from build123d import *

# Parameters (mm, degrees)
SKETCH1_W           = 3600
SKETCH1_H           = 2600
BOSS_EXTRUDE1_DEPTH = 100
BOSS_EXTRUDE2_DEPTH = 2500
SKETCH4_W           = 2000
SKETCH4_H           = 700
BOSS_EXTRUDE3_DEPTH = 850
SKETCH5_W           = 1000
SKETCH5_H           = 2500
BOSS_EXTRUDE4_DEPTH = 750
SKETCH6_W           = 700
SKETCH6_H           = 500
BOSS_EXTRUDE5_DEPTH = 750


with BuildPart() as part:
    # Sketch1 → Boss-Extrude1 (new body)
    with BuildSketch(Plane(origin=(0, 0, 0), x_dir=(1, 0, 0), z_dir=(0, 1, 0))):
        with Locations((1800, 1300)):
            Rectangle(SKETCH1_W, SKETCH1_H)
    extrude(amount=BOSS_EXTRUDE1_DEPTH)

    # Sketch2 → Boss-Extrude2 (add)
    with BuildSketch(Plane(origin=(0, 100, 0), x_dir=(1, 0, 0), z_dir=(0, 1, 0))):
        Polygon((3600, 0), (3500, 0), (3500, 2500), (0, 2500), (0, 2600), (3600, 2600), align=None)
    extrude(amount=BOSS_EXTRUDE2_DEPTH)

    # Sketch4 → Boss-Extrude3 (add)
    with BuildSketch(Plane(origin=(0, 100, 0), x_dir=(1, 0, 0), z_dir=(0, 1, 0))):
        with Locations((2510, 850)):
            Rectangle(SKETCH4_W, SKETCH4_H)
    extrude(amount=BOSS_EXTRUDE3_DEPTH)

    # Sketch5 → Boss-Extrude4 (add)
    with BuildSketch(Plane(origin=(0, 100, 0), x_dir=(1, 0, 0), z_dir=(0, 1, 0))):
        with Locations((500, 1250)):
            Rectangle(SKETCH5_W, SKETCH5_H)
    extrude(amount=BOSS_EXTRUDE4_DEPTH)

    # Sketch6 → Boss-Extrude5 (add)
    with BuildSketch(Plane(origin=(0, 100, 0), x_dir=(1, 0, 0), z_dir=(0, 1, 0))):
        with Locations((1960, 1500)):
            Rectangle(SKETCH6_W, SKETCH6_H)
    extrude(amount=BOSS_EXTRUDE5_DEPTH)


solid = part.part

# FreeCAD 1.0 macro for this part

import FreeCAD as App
import Part
import Sketcher

V = App.Vector
Q = App.Units.Quantity

doc = App.newDocument("Part")
body = doc.addObject("PartDesign::Body", "Body")

sketch1 = body.newObject("Sketcher::SketchObject", "Sketch")
sketch1.AttachmentSupport = (doc.getObject("XZ_Plane"), [""])
sketch1.MapMode = "FlatFace"
sketch1.addGeometry(Part.LineSegment(V(0, -2600, 0), V(0, 0, 0)), False)
sketch1.addGeometry(Part.LineSegment(V(0, 0, 0), V(3600, 0, 0)), False)
sketch1.addGeometry(Part.LineSegment(V(3600, 0, 0), V(3600, -2600, 0)), False)
sketch1.addGeometry(Part.LineSegment(V(3600, -2600, 0), V(0, -2600, 0)), False)
sketch1.addConstraint(Sketcher.Constraint("Coincident", 0, 2, 1, 1))
sketch1.addConstraint(Sketcher.Constraint("Coincident", 1, 2, 2, 1))
sketch1.addConstraint(Sketcher.Constraint("Coincident", 2, 2, 3, 1))
sketch1.addConstraint(Sketcher.Constraint("Coincident", 3, 2, 0, 1))
sketch1.addConstraint(Sketcher.Constraint("Vertical", 0))
sketch1.addConstraint(Sketcher.Constraint("Horizontal", 1))
sketch1.addConstraint(Sketcher.Constraint("Vertical", 2))
sketch1.addConstraint(Sketcher.Constraint("Horizontal", 3))
sketch1.addConstraint(Sketcher.Constraint("Coincident", 0, 2, -1, 1))
sketch1.addConstraint(Sketcher.Constraint("DistanceX", 1, 1, 1, 2, Q("3600 mm")))
sketch1.addConstraint(Sketcher.Constraint("DistanceY", 0, 1, 0, 2, Q("2600 mm")))
pad1 = body.newObject("PartDesign::Pad", "Pad")
pad1.Profile = sketch1
pad1.Length = 100
pad1.Reversed = True

sketch2 = body.newObject("Sketcher::SketchObject", "Sketch001")
sketch2.AttachmentSupport = (doc.getObject("XZ_Plane"), [""])
sketch2.MapMode = "FlatFace"
sketch2.AttachmentOffset = App.Placement(V(0, 0, -100), App.Rotation())
sketch2.addGeometry(Part.LineSegment(V(3500, 0, 0), V(3600, 0, 0)), False)
sketch2.addGeometry(Part.LineSegment(V(3600, 0, 0), V(3600, -2600, 0)), False)
sketch2.addGeometry(Part.LineSegment(V(3600, -2600, 0), V(0, -2600, 0)), False)
sketch2.addGeometry(Part.LineSegment(V(0, -2600, 0), V(0, -2500, 0)), False)
sketch2.addGeometry(Part.LineSegment(V(0, -2500, 0), V(3500, -2500, 0)), False)
sketch2.addGeometry(Part.LineSegment(V(3500, -2500, 0), V(3500, 0, 0)), False)
sketch2.addConstraint(Sketcher.Constraint("Coincident", 0, 2, 1, 1))
sketch2.addConstraint(Sketcher.Constraint("Coincident", 1, 2, 2, 1))
sketch2.addConstraint(Sketcher.Constraint("Coincident", 2, 2, 3, 1))
sketch2.addConstraint(Sketcher.Constraint("Coincident", 3, 2, 4, 1))
sketch2.addConstraint(Sketcher.Constraint("Coincident", 4, 2, 5, 1))
sketch2.addConstraint(Sketcher.Constraint("Coincident", 5, 2, 0, 1))
sketch2.addConstraint(Sketcher.Constraint("Horizontal", 0))
sketch2.addConstraint(Sketcher.Constraint("Vertical", 1))
sketch2.addConstraint(Sketcher.Constraint("Horizontal", 2))
sketch2.addConstraint(Sketcher.Constraint("Vertical", 3))
sketch2.addConstraint(Sketcher.Constraint("Horizontal", 4))
sketch2.addConstraint(Sketcher.Constraint("Vertical", 5))
sketch2.addConstraint(Sketcher.Constraint("PointOnObject", 0, 2, -1))
sketch2.addConstraint(Sketcher.Constraint("PointOnObject", 2, 2, -2))
sketch2.addConstraint(Sketcher.Constraint("Equal", 0, 3))
sketch2.addConstraint(Sketcher.Constraint("DistanceX", 0, 1, 0, 2, Q("100 mm")))
sketch2.addConstraint(Sketcher.Constraint("DistanceX", 2, 2, 2, 1, Q("3600 mm")))
sketch2.addConstraint(Sketcher.Constraint("DistanceY", 1, 2, 1, 1, Q("2600 mm")))
pad2 = body.newObject("PartDesign::Pad", "Pad001")
pad2.Profile = sketch2
pad2.Length = 2500
pad2.Reversed = True

sketch3 = body.newObject("Sketcher::SketchObject", "Sketch002")
sketch3.AttachmentSupport = (doc.getObject("XZ_Plane"), [""])
sketch3.MapMode = "FlatFace"
sketch3.AttachmentOffset = App.Placement(V(0, 0, -100), App.Rotation())
sketch3.addGeometry(Part.LineSegment(V(1510, -1200, 0), V(1510, -500, 0)), False)
sketch3.addGeometry(Part.LineSegment(V(1510, -500, 0), V(3510, -500, 0)), False)
sketch3.addGeometry(Part.LineSegment(V(3510, -500, 0), V(3510, -1200, 0)), False)
sketch3.addGeometry(Part.LineSegment(V(3510, -1200, 0), V(1510, -1200, 0)), False)
sketch3.addConstraint(Sketcher.Constraint("Coincident", 0, 2, 1, 1))
sketch3.addConstraint(Sketcher.Constraint("Coincident", 1, 2, 2, 1))
sketch3.addConstraint(Sketcher.Constraint("Coincident", 2, 2, 3, 1))
sketch3.addConstraint(Sketcher.Constraint("Coincident", 3, 2, 0, 1))
sketch3.addConstraint(Sketcher.Constraint("Vertical", 0))
sketch3.addConstraint(Sketcher.Constraint("Horizontal", 1))
sketch3.addConstraint(Sketcher.Constraint("Vertical", 2))
sketch3.addConstraint(Sketcher.Constraint("Horizontal", 3))
sketch3.addConstraint(Sketcher.Constraint("DistanceX", 1, 1, 1, 2, Q("2000 mm")))
sketch3.addConstraint(Sketcher.Constraint("DistanceY", 0, 1, 0, 2, Q("700 mm")))
sketch3.addConstraint(Sketcher.Constraint("DistanceX", -1, 1, 0, 2, Q("1510 mm")))
sketch3.addConstraint(Sketcher.Constraint("DistanceY", 0, 2, -1, 1, Q("500 mm")))
pad3 = body.newObject("PartDesign::Pad", "Pad002")
pad3.Profile = sketch3
pad3.Length = 850
pad3.Reversed = True

sketch4 = body.newObject("Sketcher::SketchObject", "Sketch003")
sketch4.AttachmentSupport = (doc.getObject("XZ_Plane"), [""])
sketch4.MapMode = "FlatFace"
sketch4.AttachmentOffset = App.Placement(V(0, 0, -100), App.Rotation())
sketch4.addGeometry(Part.LineSegment(V(0, -2500, 0), V(0, 0, 0)), False)
sketch4.addGeometry(Part.LineSegment(V(0, 0, 0), V(1000, 0, 0)), False)
sketch4.addGeometry(Part.LineSegment(V(1000, 0, 0), V(1000, -2500, 0)), False)
sketch4.addGeometry(Part.LineSegment(V(1000, -2500, 0), V(0, -2500, 0)), False)
sketch4.addConstraint(Sketcher.Constraint("Coincident", 0, 2, 1, 1))
sketch4.addConstraint(Sketcher.Constraint("Coincident", 1, 2, 2, 1))
sketch4.addConstraint(Sketcher.Constraint("Coincident", 2, 2, 3, 1))
sketch4.addConstraint(Sketcher.Constraint("Coincident", 3, 2, 0, 1))
sketch4.addConstraint(Sketcher.Constraint("Vertical", 0))
sketch4.addConstraint(Sketcher.Constraint("Horizontal", 1))
sketch4.addConstraint(Sketcher.Constraint("Vertical", 2))
sketch4.addConstraint(Sketcher.Constraint("Horizontal", 3))
sketch4.addConstraint(Sketcher.Constraint("Coincident", 0, 2, -1, 1))
sketch4.addConstraint(Sketcher.Constraint("DistanceX", 1, 1, 1, 2, Q("1000 mm")))
sketch4.addConstraint(Sketcher.Constraint("DistanceY", 0, 1, 0, 2, Q("2500 mm")))
pad4 = body.newObject("PartDesign::Pad", "Pad003")
pad4.Profile = sketch4
pad4.Length = 750
pad4.Reversed = True

sketch5 = body.newObject("Sketcher::SketchObject", "Sketch004")
sketch5.AttachmentSupport = (doc.getObject("XZ_Plane"), [""])
sketch5.MapMode = "FlatFace"
sketch5.AttachmentOffset = App.Placement(V(0, 0, -100), App.Rotation())
sketch5.addGeometry(Part.LineSegment(V(1610, -1750, 0), V(1610, -1250, 0)), False)
sketch5.addGeometry(Part.LineSegment(V(1610, -1250, 0), V(2310, -1250, 0)), False)
sketch5.addGeometry(Part.LineSegment(V(2310, -1250, 0), V(2310, -1750, 0)), False)
sketch5.addGeometry(Part.LineSegment(V(2310, -1750, 0), V(1610, -1750, 0)), False)
sketch5.addConstraint(Sketcher.Constraint("Coincident", 0, 2, 1, 1))
sketch5.addConstraint(Sketcher.Constraint("Coincident", 1, 2, 2, 1))
sketch5.addConstraint(Sketcher.Constraint("Coincident", 2, 2, 3, 1))
sketch5.addConstraint(Sketcher.Constraint("Coincident", 3, 2, 0, 1))
sketch5.addConstraint(Sketcher.Constraint("Vertical", 0))
sketch5.addConstraint(Sketcher.Constraint("Horizontal", 1))
sketch5.addConstraint(Sketcher.Constraint("Vertical", 2))
sketch5.addConstraint(Sketcher.Constraint("Horizontal", 3))
sketch5.addConstraint(Sketcher.Constraint("DistanceX", 1, 1, 1, 2, Q("700 mm")))
sketch5.addConstraint(Sketcher.Constraint("DistanceY", 0, 1, 0, 2, Q("500 mm")))
sketch5.addConstraint(Sketcher.Constraint("DistanceX", -1, 1, 0, 2, Q("1610 mm")))
sketch5.addConstraint(Sketcher.Constraint("DistanceY", 0, 2, -1, 1, Q("1250 mm")))
pad5 = body.newObject("PartDesign::Pad", "Pad004")
pad5.Profile = sketch5
pad5.Length = 750
pad5.Reversed = True

doc.recompute()
